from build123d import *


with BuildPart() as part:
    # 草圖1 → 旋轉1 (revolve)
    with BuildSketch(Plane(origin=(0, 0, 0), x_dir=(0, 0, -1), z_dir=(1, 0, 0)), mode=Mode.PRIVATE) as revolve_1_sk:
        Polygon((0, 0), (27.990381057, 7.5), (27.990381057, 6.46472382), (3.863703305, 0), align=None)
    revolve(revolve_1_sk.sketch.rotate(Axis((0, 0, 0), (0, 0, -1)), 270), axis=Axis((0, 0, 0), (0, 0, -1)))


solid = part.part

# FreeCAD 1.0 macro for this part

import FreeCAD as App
import Part
import Sketcher
from FreeCAD import Vector
Q = App.Units.Quantity

doc = App.newDocument("Part")
body = doc.addObject("PartDesign::Body", "Body")

sketch1 = body.newObject("Sketcher::SketchObject", "Sketch")
sketch1.AttachmentSupport = (doc.getObject("YZ_Plane"), [""])
sketch1.MapMode = "FlatFace"
sketch1.addGeometry([
    Part.LineSegment(Vector(7.5, -27.990381, 0), Vector(0, 0, 0)),
    Part.LineSegment(Vector(0, 0, 0), Vector(0, -3.863703, 0)),
    Part.LineSegment(Vector(0, -3.863703, 0), Vector(6.464724, -27.990381, 0)),
    Part.LineSegment(Vector(6.464724, -27.990381, 0), Vector(7.5, -27.990381, 0)),
], False)
sketch1.addConstraint([
    Sketcher.Constraint("Coincident", 0, 2, 1, 1),
    Sketcher.Constraint("Coincident", 1, 2, 2, 1),
    Sketcher.Constraint("Coincident", 2, 2, 3, 1),
    Sketcher.Constraint("Coincident", 3, 2, 0, 1),
    Sketcher.Constraint("Vertical", 1),
    Sketcher.Constraint("Horizontal", 3),
    Sketcher.Constraint("Coincident", 0, 2, -1, 1),
    Sketcher.Constraint("Parallel", 0, 2),
    Sketcher.Constraint("Angle", 0, Q("105 deg")),
    Sketcher.Constraint("DistanceX", -1, 1, 3, 2, Q("7.5 mm")),
    Sketcher.Constraint("DistanceX", 3, 1, 3, 2, Q("1.035276 mm")),
])
revolution = body.newObject("PartDesign::Revolution", "Revolution")
revolution.Profile = sketch1
revolution.ReferenceAxis = (sketch1, ["V_Axis"])
revolution.Angle = 360

doc.recompute()
